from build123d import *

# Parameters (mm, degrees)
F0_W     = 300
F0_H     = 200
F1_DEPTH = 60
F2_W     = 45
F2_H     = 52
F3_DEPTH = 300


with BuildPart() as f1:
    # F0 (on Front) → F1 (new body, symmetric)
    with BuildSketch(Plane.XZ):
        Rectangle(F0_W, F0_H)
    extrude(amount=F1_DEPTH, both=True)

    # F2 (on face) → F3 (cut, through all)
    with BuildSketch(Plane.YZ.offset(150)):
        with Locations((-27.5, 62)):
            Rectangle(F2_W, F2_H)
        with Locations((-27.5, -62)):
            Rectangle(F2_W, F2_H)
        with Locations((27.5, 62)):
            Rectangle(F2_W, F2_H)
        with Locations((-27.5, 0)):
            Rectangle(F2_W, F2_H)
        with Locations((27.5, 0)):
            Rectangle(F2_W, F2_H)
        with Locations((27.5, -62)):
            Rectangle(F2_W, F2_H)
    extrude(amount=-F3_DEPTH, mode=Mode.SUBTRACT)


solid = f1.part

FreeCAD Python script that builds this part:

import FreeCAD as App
import Part
import Sketcher
from FreeCAD import Vector


def add_polygon(sketch, points):
    """Adds a closed chain of lines whose ends are joined by coincident constraints."""
    first, n = sketch.GeometryCount, len(points)
    for a, b in zip(points, points[1:] + points[:1]):
        sketch.addGeometry(Part.LineSegment(App.Vector(*a, 0), App.Vector(*b, 0)), False)
    for i in range(n):
        sketch.addConstraint(Sketcher.Constraint("Coincident", first + i, 2, first + (i + 1) % n, 1))

doc = App.newDocument("Part")
body = doc.addObject("PartDesign::Body", "Body")

sketch1 = body.newObject("Sketcher::SketchObject", "Sketch")
sketch1.AttachmentSupport = (doc.getObject("XZ_Plane"), [""])
sketch1.MapMode = "FlatFace"
add_polygon(sketch1, [(-150, 100), (-150, -100), (150, -100), (150, 100)])
sketch1.addConstraint(Sketcher.Constraint("Vertical", 0))
sketch1.addConstraint(Sketcher.Constraint("Horizontal", 1))
sketch1.addConstraint(Sketcher.Constraint("Vertical", 2))
sketch1.addConstraint(Sketcher.Constraint("Horizontal", 3))
sketch1.addConstraint(Sketcher.Constraint("Symmetric", 0, 2, 2, 2, -1, 1))
sketch1.addConstraint(Sketcher.Constraint("DistanceX", 1, 1, 1, 2, 300.0))
sketch1.addConstraint(Sketcher.Constraint("DistanceY", 0, 2, 0, 1, 200.0))
pad1 = body.newObject("PartDesign::Pad", "Pad")
pad1.Profile = sketch1
pad1.Length = 120
pad1.Midplane = True

sketch2 = body.newObject("Sketcher::SketchObject", "Sketch001")
sketch2.AttachmentSupport = (doc.getObject("YZ_Plane"), [""])
sketch2.MapMode = "FlatFace"
sketch2.AttachmentOffset = App.Placement(Vector(0, 0, 150), App.Rotation())
add_polygon(sketch2, [(-50, 88), (-50, 36), (-5, 36), (-5, 88)])
add_polygon(sketch2, [(-50, -36), (-50, -88), (-5, -88), (-5, -36)])
add_polygon(sketch2, [(5, 88), (5, 36), (50, 36), (50, 88)])
add_polygon(sketch2, [(-50, 26), (-50, -26), (-5, -26), (-5, 26)])
add_polygon(sketch2, [(5, 26), (5, -26), (50, -26), (50, 26)])
add_polygon(sketch2, [(5, -36), (5, -88), (50, -88), (50, -36)])
sketch2.addConstraint(Sketcher.Constraint("Vertical", 0))
sketch2.addConstraint(Sketcher.Constraint("Horizontal", 1))
sketch2.addConstraint(Sketcher.Constraint("Vertical", 2))
sketch2.addConstraint(Sketcher.Constraint("Horizontal", 3))
sketch2.addConstraint(Sketcher.Constraint("Vertical", 4))
sketch2.addConstraint(Sketcher.Constraint("Horizontal", 5))
sketch2.addConstraint(Sketcher.Constraint("Vertical", 6))
sketch2.addConstraint(Sketcher.Constraint("Horizontal", 7))
sketch2.addConstraint(Sketcher.Constraint("Vertical", 8))
sketch2.addConstraint(Sketcher.Constraint("Horizontal", 9))
sketch2.addConstraint(Sketcher.Constraint("Vertical", 10))
sketch2.addConstraint(Sketcher.Constraint("Horizontal", 11))
sketch2.addConstraint(Sketcher.Constraint("Vertical", 12))
sketch2.addConstraint(Sketcher.Constraint("Horizontal", 13))
sketch2.addConstraint(Sketcher.Constraint("Vertical", 14))
sketch2.addConstraint(Sketcher.Constraint("Horizontal", 15))
sketch2.addConstraint(Sketcher.Constraint("Vertical", 16))
sketch2.addConstraint(Sketcher.Constraint("Horizontal", 17))
sketch2.addConstraint(Sketcher.Constraint("Vertical", 18))
sketch2.addConstraint(Sketcher.Constraint("Horizontal", 19))
sketch2.addConstraint(Sketcher.Constraint("Vertical", 20))
sketch2.addConstraint(Sketcher.Constraint("Horizontal", 21))
sketch2.addConstraint(Sketcher.Constraint("Vertical", 22))
sketch2.addConstraint(Sketcher.Constraint("Horizontal", 23))
sketch2.addConstraint(Sketcher.Constraint("Symmetric", 6, 2, 8, 2, -1, 1))
sketch2.addConstraint(Sketcher.Constraint("Symmetric", 4, 2, 10, 2, -1, 1))
sketch2.addConstraint(Sketcher.Constraint("Symmetric", 14, 2, 16, 2, -1, 1))
sketch2.addConstraint(Sketcher.Constraint("Symmetric", 12, 2, 18, 2, -1, 1))
sketch2.addConstraint(Sketcher.Constraint("Symmetric", 2, 2, 20, 2, -1, 1))
sketch2.addConstraint(Sketcher.Constraint("Symmetric", 0, 2, 22, 2, -1, 1))
sketch2.addConstraint(Sketcher.Constraint("Symmetric", 1, 2, 8, 2, -2))
sketch2.addConstraint(Sketcher.Constraint("Symmetric", 3, 2, 10, 2, -2))
sketch2.addConstraint(Sketcher.Constraint("Horizontal", 13, 2, 16, 2))
sketch2.addConstraint(Sketcher.Constraint("Vertical", 7, 2, 12, 2))
sketch2.addConstraint(Sketcher.Constraint("Vertical", 6, 2, 13, 2))
sketch2.addConstraint(Sketcher.Constraint("Equal", 10, 12))
sketch2.addConstraint(Sketcher.Constraint("DistanceX", 1, 1, 1, 2, 45.0))
sketch2.addConstraint(Sketcher.Constraint("DistanceY", 0, 2, 0, 1, 52.0))
sketch2.addConstraint(Sketcher.Constraint("DistanceX", 0, 2, -1, 1, 50.0))
sketch2.addConstraint(Sketcher.Constraint("DistanceY", -1, 1, 0, 2, 36.0))
pocket1 = body.newObject("PartDesign::Pocket", "Pocket")
pocket1.Profile = sketch2
pocket1.Type = "ThroughAll"

doc.recompute()
